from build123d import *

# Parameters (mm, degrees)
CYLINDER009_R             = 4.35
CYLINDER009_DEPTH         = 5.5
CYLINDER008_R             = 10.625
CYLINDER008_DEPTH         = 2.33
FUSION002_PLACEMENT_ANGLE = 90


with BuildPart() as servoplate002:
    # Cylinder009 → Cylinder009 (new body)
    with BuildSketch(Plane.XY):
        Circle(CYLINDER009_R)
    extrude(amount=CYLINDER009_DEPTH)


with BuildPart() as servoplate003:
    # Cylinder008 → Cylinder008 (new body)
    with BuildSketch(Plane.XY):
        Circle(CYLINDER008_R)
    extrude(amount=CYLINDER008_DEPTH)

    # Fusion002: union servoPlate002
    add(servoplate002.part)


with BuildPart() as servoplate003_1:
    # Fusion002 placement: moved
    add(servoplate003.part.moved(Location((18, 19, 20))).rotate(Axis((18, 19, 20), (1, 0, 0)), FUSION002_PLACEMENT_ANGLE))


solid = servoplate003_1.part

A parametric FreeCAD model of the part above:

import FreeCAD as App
import Part
import Sketcher
from FreeCAD import Vector

doc = App.newDocument("Part")
body = doc.addObject("PartDesign::Body", "Body")

# Sketch on XY plane
sketch1 = doc.addObject("Sketcher::SketchObject", "Sketch")
body.addObject(sketch1)
sketch1.AttachmentSupport = (doc.XY_Plane, [""])
sketch1.MapMode = "FlatFace"
sketch1.addGeometry(Part.Circle(Vector(0, 0, 0), Vector(0, 0, 1), 4.35), False)
sketch1.addConstraint(Sketcher.Constraint("Coincident", 0, 3, -1, 1))
sketch1.addConstraint(Sketcher.Constraint("Diameter", 0, 8.7))
pad1 = doc.addObject("PartDesign::Pad", "Pad")
body.addObject(pad1)
pad1.Profile = sketch1
pad1.Length = 5.5
body2 = doc.addObject("PartDesign::Body", "Body001")

# Sketch on XY plane
sketch2 = doc.addObject("Sketcher::SketchObject", "Sketch001")
body2.addObject(sketch2)
sketch2.AttachmentSupport = (doc.getObject("XY_Plane001"), [""])
sketch2.MapMode = "FlatFace"
sketch2.addGeometry(Part.Circle(Vector(0, 0, 0), Vector(0, 0, 1), 10.625), False)
sketch2.addConstraint(Sketcher.Constraint("Coincident", 0, 3, -1, 1))
sketch2.addConstraint(Sketcher.Constraint("Diameter", 0, 21.25))
pad2 = doc.addObject("PartDesign::Pad", "Pad001")
body2.addObject(pad2)
pad2.Profile = sketch2
pad2.Length = 2.33
doc.recompute()

boolean = doc.addObject("PartDesign::Boolean", "Boolean")
body2.addObject(boolean)
boolean.Type = "Fuse"
boolean.addObjects([body])
body3 = doc.addObject("PartDesign::Body", "Body002")
doc.recompute()

body2.Placement = App.Placement(Vector(18, 19, 20), App.Rotation(Vector(1, 0, 0), 90))
boolean2 = doc.addObject("PartDesign::Boolean", "Boolean001")
body3.addObject(boolean2)
boolean2.Type = "Fuse"
boolean2.addObjects([body2])

doc.recompute()
